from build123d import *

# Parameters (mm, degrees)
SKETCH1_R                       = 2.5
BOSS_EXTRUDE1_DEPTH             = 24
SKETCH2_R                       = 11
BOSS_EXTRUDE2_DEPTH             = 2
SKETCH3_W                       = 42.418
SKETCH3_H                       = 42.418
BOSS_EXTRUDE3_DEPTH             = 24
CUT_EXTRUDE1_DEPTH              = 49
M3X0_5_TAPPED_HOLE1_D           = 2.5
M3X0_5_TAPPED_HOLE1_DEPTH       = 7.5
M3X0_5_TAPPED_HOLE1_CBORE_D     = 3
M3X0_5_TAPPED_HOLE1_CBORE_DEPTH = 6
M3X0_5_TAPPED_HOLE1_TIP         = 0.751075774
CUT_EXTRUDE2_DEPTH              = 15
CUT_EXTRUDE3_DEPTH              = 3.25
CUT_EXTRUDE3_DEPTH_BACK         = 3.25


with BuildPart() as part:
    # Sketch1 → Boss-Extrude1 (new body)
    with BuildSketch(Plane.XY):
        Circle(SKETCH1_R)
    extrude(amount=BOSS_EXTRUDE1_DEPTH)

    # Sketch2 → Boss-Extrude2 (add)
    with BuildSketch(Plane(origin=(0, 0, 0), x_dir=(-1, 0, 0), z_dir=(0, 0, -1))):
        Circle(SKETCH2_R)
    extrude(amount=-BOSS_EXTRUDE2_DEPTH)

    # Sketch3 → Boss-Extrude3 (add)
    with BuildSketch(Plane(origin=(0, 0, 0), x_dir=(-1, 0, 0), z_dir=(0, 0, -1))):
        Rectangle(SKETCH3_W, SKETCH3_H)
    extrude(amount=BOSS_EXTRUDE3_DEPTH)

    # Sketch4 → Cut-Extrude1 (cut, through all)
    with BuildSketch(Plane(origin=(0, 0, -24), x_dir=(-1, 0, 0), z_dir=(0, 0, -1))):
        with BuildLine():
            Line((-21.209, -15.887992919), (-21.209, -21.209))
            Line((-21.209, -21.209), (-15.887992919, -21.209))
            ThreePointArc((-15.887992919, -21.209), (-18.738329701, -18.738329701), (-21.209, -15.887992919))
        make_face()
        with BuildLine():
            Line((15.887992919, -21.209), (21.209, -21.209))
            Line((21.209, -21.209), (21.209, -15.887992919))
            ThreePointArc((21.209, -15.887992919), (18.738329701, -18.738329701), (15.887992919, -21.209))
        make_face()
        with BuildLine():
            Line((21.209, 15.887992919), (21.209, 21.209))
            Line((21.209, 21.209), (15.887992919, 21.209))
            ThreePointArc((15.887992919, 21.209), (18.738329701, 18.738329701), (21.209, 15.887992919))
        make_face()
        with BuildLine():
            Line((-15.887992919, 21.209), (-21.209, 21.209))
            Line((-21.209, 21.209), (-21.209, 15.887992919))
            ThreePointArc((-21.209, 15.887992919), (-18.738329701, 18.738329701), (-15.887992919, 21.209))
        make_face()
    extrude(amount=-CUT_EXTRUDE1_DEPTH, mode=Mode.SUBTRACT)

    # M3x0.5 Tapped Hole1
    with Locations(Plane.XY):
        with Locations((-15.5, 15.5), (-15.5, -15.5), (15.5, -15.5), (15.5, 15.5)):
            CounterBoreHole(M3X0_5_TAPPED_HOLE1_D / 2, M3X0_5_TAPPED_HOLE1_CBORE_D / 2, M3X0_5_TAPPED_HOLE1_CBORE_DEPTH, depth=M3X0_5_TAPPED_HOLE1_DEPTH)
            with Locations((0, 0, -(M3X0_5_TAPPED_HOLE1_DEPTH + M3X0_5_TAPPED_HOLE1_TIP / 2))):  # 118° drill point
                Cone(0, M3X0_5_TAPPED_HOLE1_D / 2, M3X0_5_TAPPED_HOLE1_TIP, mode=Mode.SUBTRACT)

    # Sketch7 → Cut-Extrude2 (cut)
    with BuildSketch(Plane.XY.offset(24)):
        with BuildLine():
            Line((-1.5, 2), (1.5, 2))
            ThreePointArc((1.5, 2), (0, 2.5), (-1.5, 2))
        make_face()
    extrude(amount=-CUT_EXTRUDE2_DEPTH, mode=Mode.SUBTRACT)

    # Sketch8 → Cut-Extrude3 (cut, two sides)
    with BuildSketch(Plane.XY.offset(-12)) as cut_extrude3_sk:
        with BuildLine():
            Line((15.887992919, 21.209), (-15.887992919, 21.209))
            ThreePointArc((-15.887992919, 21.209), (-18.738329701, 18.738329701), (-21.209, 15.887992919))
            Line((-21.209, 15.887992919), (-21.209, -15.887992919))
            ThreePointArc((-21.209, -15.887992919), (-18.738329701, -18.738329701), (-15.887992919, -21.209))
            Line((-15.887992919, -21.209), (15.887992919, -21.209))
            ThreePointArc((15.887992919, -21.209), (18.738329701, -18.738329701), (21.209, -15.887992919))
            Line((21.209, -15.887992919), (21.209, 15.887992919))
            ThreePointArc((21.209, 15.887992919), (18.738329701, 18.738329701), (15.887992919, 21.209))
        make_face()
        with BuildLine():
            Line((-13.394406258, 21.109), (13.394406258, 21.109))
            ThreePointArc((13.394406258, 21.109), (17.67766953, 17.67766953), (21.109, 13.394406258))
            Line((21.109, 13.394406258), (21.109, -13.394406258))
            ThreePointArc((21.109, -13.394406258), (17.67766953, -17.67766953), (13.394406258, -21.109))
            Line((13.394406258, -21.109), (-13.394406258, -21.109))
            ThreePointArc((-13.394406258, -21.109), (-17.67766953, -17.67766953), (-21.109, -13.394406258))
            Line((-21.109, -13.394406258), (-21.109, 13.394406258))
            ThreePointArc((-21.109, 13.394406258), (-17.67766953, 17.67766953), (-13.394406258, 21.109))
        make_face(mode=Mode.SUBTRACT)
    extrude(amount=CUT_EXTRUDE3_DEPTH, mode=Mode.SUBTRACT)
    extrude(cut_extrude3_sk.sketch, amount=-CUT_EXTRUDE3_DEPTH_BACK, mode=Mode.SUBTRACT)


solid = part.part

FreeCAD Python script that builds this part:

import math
import FreeCAD as App
import Part
import Sketcher

doc = App.newDocument("Part")
params = doc.addObject("Spreadsheet::Sheet", "Params")
for row, (alias, value) in enumerate([
    ("sketch1_diameter", "5 mm"),
    ("pad1_length", "24 mm"),
    ("sketch2_diameter", "22 mm"),
    ("pad2_length", "2 mm"),
    ("pad3_length", "24 mm"),
    ("sketch4_radius", "26.5 mm"),
    ("sketch5_diameter", "2.5 mm"),
    ("hole_diameter", "2.5 mm"),
    ("hole_depth", "7.5 mm"),
    ("hole_cbore_diameter", "3 mm"),
    ("hole_cbore_depth", "6 mm"),
    ("sketch6_radius", "2.5 mm"),
    ("sketch6_width", "3 mm"),
    ("pocket2_length", "15 mm"),
    ("sketch7_radius", "25 mm"),
    ("sketch7_radius2", "26.5 mm"),
    ("pocket3_length", "3.25 mm"),
    ("pocket3_length2", "3.25 mm"),
], start=1):
    params.set(f"A{row}", alias)
    params.set(f"B{row}", "=" + value)
    params.setAlias(f"B{row}", alias)

body = doc.addObject("PartDesign::Body", "Body")

sketch1 = doc.addObject("Sketcher::SketchObject", "Sketch")
body.addObject(sketch1)
sketch1.AttachmentSupport = (doc.XY_Plane, [""])
sketch1.MapMode = "FlatFace"
sketch1.addGeometry(Part.Circle(App.Vector(0, 0, 0), App.Vector(0, 0, 1), 2.5), False)
sketch1.addConstraint(Sketcher.Constraint("Coincident", 0, 3, -1, 1))
sketch1.addConstraint(Sketcher.Constraint("Diameter", 0, 5.0))
sketch1.setExpression("Constraints[1]", "Params.sketch1_diameter")
pad1 = doc.addObject("PartDesign::Pad", "Pad")
body.addObject(pad1)
pad1.Profile = sketch1
pad1.setExpression("Length", "Params.pad1_length")

sketch2 = doc.addObject("Sketcher::SketchObject", "Sketch001")
body.addObject(sketch2)
sketch2.AttachmentSupport = (doc.XY_Plane, [""])
sketch2.MapMode = "FlatFace"
sketch2.addGeometry(Part.Circle(App.Vector(0, 0, 0), App.Vector(0, 0, 1), 11), False)
sketch2.addConstraint(Sketcher.Constraint("Coincident", 0, 3, -1, 1))
sketch2.addConstraint(Sketcher.Constraint("Diameter", 0, 22.0))
sketch2.setExpression("Constraints[1]", "Params.sketch2_diameter")
pad2 = doc.addObject("PartDesign::Pad", "Pad001")
body.addObject(pad2)
pad2.Profile = sketch2
pad2.setExpression("Length", "Params.pad2_length")

sketch3 = doc.addObject("Sketcher::SketchObject", "Sketch002")
body.addObject(sketch3)
sketch3.AttachmentSupport = (doc.XY_Plane, [""])
sketch3.MapMode = "FlatFace"
sketch3.addGeometry(Part.LineSegment(App.Vector(21, 21, 0), App.Vector(21, -21, 0)), False)
sketch3.addGeometry(Part.LineSegment(App.Vector(21, -21, 0), App.Vector(-21, -21, 0)), False)
sketch3.addGeometry(Part.LineSegment(App.Vector(-21, -21, 0), App.Vector(-21, 21, 0)), False)
sketch3.addGeometry(Part.LineSegment(App.Vector(-21, 21, 0), App.Vector(21, 21, 0)), False)
sketch3.addConstraint(Sketcher.Constraint("Coincident", 0, 2, 1, 1))
sketch3.addConstraint(Sketcher.Constraint("Coincident", 1, 2, 2, 1))
sketch3.addConstraint(Sketcher.Constraint("Coincident", 2, 2, 3, 1))
sketch3.addConstraint(Sketcher.Constraint("Coincident", 3, 2, 0, 1))
sketch3.addConstraint(Sketcher.Constraint("Vertical", 0))
sketch3.addConstraint(Sketcher.Constraint("Horizontal", 1))
sketch3.addConstraint(Sketcher.Constraint("Vertical", 2))
sketch3.addConstraint(Sketcher.Constraint("Horizontal", 3))
sketch3.addConstraint(Sketcher.Constraint("Symmetric", 0, 2, 2, 2, -1, 1))
sketch3.addConstraint(Sketcher.Constraint("Equal", 3, 0))
sketch3.addConstraint(Sketcher.Constraint("DistanceX", 1, 2, 1, 1, 42.418))
pad3 = doc.addObject("PartDesign::Pad", "Pad002")
body.addObject(pad3)
pad3.Profile = sketch3
pad3.setExpression("Length", "Params.pad3_length")
pad3.Reversed = True

sketch4 = doc.addObject("Sketcher::SketchObject", "Sketch003")
body.addObject(sketch4)
sketch4.AttachmentSupport = (doc.XY_Plane, [""])
sketch4.MapMode = "FlatFace"
sketch4.AttachmentOffset = App.Placement(App.Vector(0, 0, -24), App.Rotation())
sketch4.addGeometry(Part.LineSegment(App.Vector(21, -16, 0), App.Vector(21, -21, 0)), False)
sketch4.addGeometry(Part.LineSegment(App.Vector(21, -21, 0), App.Vector(16, -21, 0)), False)
sketch4.addGeometry(Part.ArcOfCircle(Part.Circle(App.Vector(0, 0, 0), App.Vector(0, 0, 1), 27), math.radians(-53.16), math.radians(-36.84)), False)
sketch4.addGeometry(Part.LineSegment(App.Vector(-16, -21, 0), App.Vector(-21, -21, 0)), False)
sketch4.addGeometry(Part.LineSegment(App.Vector(-21, -21, 0), App.Vector(-21, -16, 0)), False)
sketch4.addGeometry(Part.ArcOfCircle(Part.Circle(App.Vector(0, 0, 0), App.Vector(0, 0, 1), 27), math.radians(-143.16), math.radians(-126.84)), False)
sketch4.addGeometry(Part.LineSegment(App.Vector(-21, 16, 0), App.Vector(-21, 21, 0)), False)
sketch4.addGeometry(Part.LineSegment(App.Vector(-21, 21, 0), App.Vector(-16, 21, 0)), False)
sketch4.addGeometry(Part.ArcOfCircle(Part.Circle(App.Vector(0, 0, 0), App.Vector(0, 0, 1), 27), math.radians(126.84), math.radians(143.16)), False)
sketch4.addGeometry(Part.LineSegment(App.Vector(16, 21, 0), App.Vector(21, 21, 0)), False)
sketch4.addGeometry(Part.LineSegment(App.Vector(21, 21, 0), App.Vector(21, 16, 0)), False)
sketch4.addGeometry(Part.ArcOfCircle(Part.Circle(App.Vector(0, 0, 0), App.Vector(0, 0, 1), 27), math.radians(36.84), math.radians(53.16)), False)
sketch4.addConstraint(Sketcher.Constraint("Coincident", 0, 2, 1, 1))
sketch4.addConstraint(Sketcher.Constraint("Coincident", 1, 2, 2, 1))
sketch4.addConstraint(Sketcher.Constraint("Coincident", 2, 2, 0, 1))
sketch4.addConstraint(Sketcher.Constraint("Coincident", 3, 2, 4, 1))
sketch4.addConstraint(Sketcher.Constraint("Coincident", 4, 2, 5, 1))
sketch4.addConstraint(Sketcher.Constraint("Coincident", 5, 2, 3, 1))
sketch4.addConstraint(Sketcher.Constraint("Coincident", 6, 2, 7, 1))
sketch4.addConstraint(Sketcher.Constraint("Coincident", 7, 2, 8, 1))
sketch4.addConstraint(Sketcher.Constraint("Coincident", 8, 2, 6, 1))
sketch4.addConstraint(Sketcher.Constraint("Coincident", 9, 2, 10, 1))
sketch4.addConstraint(Sketcher.Constraint("Coincident", 10, 2, 11, 1))
sketch4.addConstraint(Sketcher.Constraint("Coincident", 11, 2, 9, 1))
sketch4.addConstraint(Sketcher.Constraint("Vertical", 0))
sketch4.addConstraint(Sketcher.Constraint("Horizontal", 1))
sketch4.addConstraint(Sketcher.Constraint("Horizontal", 3))
sketch4.addConstraint(Sketcher.Constraint("Vertical", 4))
sketch4.addConstraint(Sketcher.Constraint("Vertical", 6))
sketch4.addConstraint(Sketcher.Constraint("Horizontal", 7))
sketch4.addConstraint(Sketcher.Constraint("Horizontal", 9))
sketch4.addConstraint(Sketcher.Constraint("Vertical", 10))
sketch4.addConstraint(Sketcher.Constraint("Coincident", 2, 3, -1, 1))
sketch4.addConstraint(Sketcher.Constraint("Coincident", 5, 3, -1, 1))
sketch4.addConstraint(Sketcher.Constraint("Coincident", 8, 3, -1, 1))
sketch4.addConstraint(Sketcher.Constraint("Coincident", 11, 3, -1, 1))
sketch4.addConstraint(Sketcher.Constraint("Equal", 2, 5))
sketch4.addConstraint(Sketcher.Constraint("Equal", 5, 8))
sketch4.addConstraint(Sketcher.Constraint("Equal", 8, 11))
sketch4.addConstraint(Sketcher.Constraint("Symmetric", 0, 2, 6, 2, -1, 1))
sketch4.addConstraint(Sketcher.Constraint("Symmetric", 3, 2, 9, 2, -1, 1))
sketch4.addConstraint(Sketcher.Constraint("Symmetric", 0, 2, 3, 2, -2))
sketch4.addConstraint(Sketcher.Constraint("Equal", 9, 0))
sketch4.addConstraint(Sketcher.Constraint("Radius", 2, 26.5))
sketch4.addConstraint(Sketcher.Constraint("DistanceX", -1, 1, 0, 2, 21.209))
sketch4.setExpression("Constraints[31]", "Params.sketch4_radius")
pocket1 = doc.addObject("PartDesign::Pocket", "Pocket")
body.addObject(pocket1)
pocket1.Profile = sketch4
pocket1.Type = "ThroughAll"
pocket1.Reversed = True

sketch5 = doc.addObject("Sketcher::SketchObject", "Sketch004")
body.addObject(sketch5)
sketch5.AttachmentSupport = (doc.XY_Plane, [""])
sketch5.MapMode = "FlatFace"
sketch5.addGeometry(Part.Circle(App.Vector(-15.5, 15.5, 0), App.Vector(0, 0, 1), 1.2), False)
sketch5.addGeometry(Part.Circle(App.Vector(-15.5, -15.5, 0), App.Vector(0, 0, 1), 1.2), False)
sketch5.addGeometry(Part.Circle(App.Vector(15.5, -15.5, 0), App.Vector(0, 0, 1), 1.2), False)
sketch5.addGeometry(Part.Circle(App.Vector(15.5, 15.5, 0), App.Vector(0, 0, 1), 1.2), False)
sketch5.addConstraint(Sketcher.Constraint("Equal", 0, 1))
sketch5.addConstraint(Sketcher.Constraint("Equal", 1, 2))
sketch5.addConstraint(Sketcher.Constraint("Equal", 2, 3))
sketch5.addConstraint(Sketcher.Constraint("Symmetric", 0, 3, 2, 3, -1, 1))
sketch5.addConstraint(Sketcher.Constraint("Symmetric", 1, 3, 3, 3, -1, 1))
sketch5.addConstraint(Sketcher.Constraint("Symmetric", 1, 3, 2, 3, -2))
sketch5.addConstraint(Sketcher.Constraint("Diameter", 0, 2.5))
sketch5.addConstraint(Sketcher.Constraint("DistanceY", 1, 3, 0, 3, 31.0))
sketch5.addConstraint(Sketcher.Constraint("DistanceX", 1, 3, 2, 3, 31.0))
sketch5.setExpression("Constraints[6]", "Params.sketch5_diameter")
doc.recompute()
hole = doc.addObject("PartDesign::Hole", "Hole")
body.addObject(hole)
hole.Profile = sketch5
hole.ThreadType = "None"
hole.setExpression("Diameter", "Params.hole_diameter")
hole.DepthType = "Dimension"
hole.setExpression("Depth", "Params.hole_depth")
hole.DrillPoint = "Angled"
hole.DrillPointAngle = 118
hole.HoleCutType = "Counterbore"
hole.setExpression("HoleCutDiameter", "Params.hole_cbore_diameter")
hole.setExpression("HoleCutDepth", "Params.hole_cbore_depth")

sketch6 = doc.addObject("Sketcher::SketchObject", "Sketch005")
body.addObject(sketch6)
sketch6.AttachmentSupport = (doc.XY_Plane, [""])
sketch6.MapMode = "FlatFace"
sketch6.AttachmentOffset = App.Placement(App.Vector(0, 0, 24), App.Rotation())
sketch6.addGeometry(Part.LineSegment(App.Vector(-1.5, 2, 0), App.Vector(1.5, 2, 0)), False)
sketch6.addGeometry(Part.ArcOfCircle(Part.Circle(App.Vector(0, 0, 0), App.Vector(0, 0, 1), 2.5), math.radians(53), math.radians(127)), False)
sketch6.addConstraint(Sketcher.Constraint("Coincident", 0, 1, 1, 2))
sketch6.addConstraint(Sketcher.Constraint("Coincident", 1, 1, 0, 2))
sketch6.addConstraint(Sketcher.Constraint("Horizontal", 0))
sketch6.addConstraint(Sketcher.Constraint("Coincident", 1, 3, -1, 1))
sketch6.addConstraint(Sketcher.Constraint("Radius", 1, 2.5))
sketch6.addConstraint(Sketcher.Constraint("DistanceX", 0, 1, 0, 2, 3.0))
sketch6.setExpression("Constraints[4]", "Params.sketch6_radius")
sketch6.setExpression("Constraints[5]", "Params.sketch6_width")
pocket2 = doc.addObject("PartDesign::Pocket", "Pocket001")
body.addObject(pocket2)
pocket2.Profile = sketch6
pocket2.setExpression("Length", "Params.pocket2_length")

sketch7 = doc.addObject("Sketcher::SketchObject", "Sketch006")
body.addObject(sketch7)
sketch7.AttachmentSupport = (doc.XY_Plane, [""])
sketch7.MapMode = "FlatFace"
sketch7.AttachmentOffset = App.Placement(App.Vector(0, 0, -12), App.Rotation())
sketch7.addGeometry(Part.LineSegment(App.Vector(16, 21, 0), App.Vector(-16, 21, 0)), False)
sketch7.addGeometry(Part.ArcOfCircle(Part.Circle(App.Vector(0, 0, 0), App.Vector(0, 0, 1), 27), math.radians(126.84), math.radians(143.16)), False)
sketch7.addGeometry(Part.LineSegment(App.Vector(-21, 16, 0), App.Vector(-21, -16, 0)), False)
sketch7.addGeometry(Part.ArcOfCircle(Part.Circle(App.Vector(0, 0, 0), App.Vector(0, 0, 1), 27), math.radians(-143.16), math.radians(-126.84)), False)
sketch7.addGeometry(Part.LineSegment(App.Vector(-16, -21, 0), App.Vector(16, -21, 0)), False)
sketch7.addGeometry(Part.ArcOfCircle(Part.Circle(App.Vector(0, 0, 0), App.Vector(0, 0, 1), 27), math.radians(-53.16), math.radians(-36.84)), False)
sketch7.addGeometry(Part.LineSegment(App.Vector(21, -16, 0), App.Vector(21, 16, 0)), False)
sketch7.addGeometry(Part.ArcOfCircle(Part.Circle(App.Vector(0, 0, 0), App.Vector(0, 0, 1), 27), math.radians(36.84), math.radians(53.16)), False)
sketch7.addGeometry(Part.ArcOfCircle(Part.Circle(App.Vector(0, 0, 0), App.Vector(0, 0, 1), 25), math.radians(122), math.radians(148)), False)
sketch7.addGeometry(Part.LineSegment(App.Vector(-13, 21, 0), App.Vector(13, 21, 0)), False)
sketch7.addGeometry(Part.ArcOfCircle(Part.Circle(App.Vector(0, 0, 0), App.Vector(0, 0, 1), 25), math.radians(32), math.radians(58)), False)
sketch7.addGeometry(Part.LineSegment(App.Vector(21, 13, 0), App.Vector(21, -13, 0)), False)
sketch7.addGeometry(Part.ArcOfCircle(Part.Circle(App.Vector(0, 0, 0), App.Vector(0, 0, 1), 25), math.radians(-58), math.radians(-32)), False)
sketch7.addGeometry(Part.LineSegment(App.Vector(13, -21, 0), App.Vector(-13, -21, 0)), False)
sketch7.addGeometry(Part.ArcOfCircle(Part.Circle(App.Vector(0, 0, 0), App.Vector(0, 0, 1), 25), math.radians(-148), math.radians(-122)), False)
sketch7.addGeometry(Part.LineSegment(App.Vector(-21, -13, 0), App.Vector(-21, 13, 0)), False)
sketch7.addConstraint(Sketcher.Constraint("Coincident", 0, 2, 1, 1))
sketch7.addConstraint(Sketcher.Constraint("Coincident", 1, 2, 2, 1))
sketch7.addConstraint(Sketcher.Constraint("Coincident", 2, 2, 3, 1))
sketch7.addConstraint(Sketcher.Constraint("Coincident", 3, 2, 4, 1))
sketch7.addConstraint(Sketcher.Constraint("Coincident", 4, 2, 5, 1))
sketch7.addConstraint(Sketcher.Constraint("Coincident", 5, 2, 6, 1))
sketch7.addConstraint(Sketcher.Constraint("Coincident", 6, 2, 7, 1))
sketch7.addConstraint(Sketcher.Constraint("Coincident", 7, 2, 0, 1))
sketch7.addConstraint(Sketcher.Constraint("Coincident", 8, 1, 9, 1))
sketch7.addConstraint(Sketcher.Constraint("Coincident", 9, 2, 10, 2))
sketch7.addConstraint(Sketcher.Constraint("Coincident", 10, 1, 11, 1))
sketch7.addConstraint(Sketcher.Constraint("Coincident", 11, 2, 12, 2))
sketch7.addConstraint(Sketcher.Constraint("Coincident", 12, 1, 13, 1))
sketch7.addConstraint(Sketcher.Constraint("Coincident", 13, 2, 14, 2))
sketch7.addConstraint(Sketcher.Constraint("Coincident", 14, 1, 15, 1))
sketch7.addConstraint(Sketcher.Constraint("Coincident", 15, 2, 8, 2))
sketch7.addConstraint(Sketcher.Constraint("Horizontal", 0))
sketch7.addConstraint(Sketcher.Constraint("Vertical", 2))
sketch7.addConstraint(Sketcher.Constraint("Horizontal", 4))
sketch7.addConstraint(Sketcher.Constraint("Vertical", 6))
sketch7.addConstraint(Sketcher.Constraint("Horizontal", 9))
sketch7.addConstraint(Sketcher.Constraint("Vertical", 11))
sketch7.addConstraint(Sketcher.Constraint("Horizontal", 13))
sketch7.addConstraint(Sketcher.Constraint("Vertical", 15))
sketch7.addConstraint(Sketcher.Constraint("Coincident", 1, 3, -1, 1))
sketch7.addConstraint(Sketcher.Constraint("Coincident", 3, 3, -1, 1))
sketch7.addConstraint(Sketcher.Constraint("Coincident", 5, 3, -1, 1))
sketch7.addConstraint(Sketcher.Constraint("Coincident", 7, 3, -1, 1))
sketch7.addConstraint(Sketcher.Constraint("Coincident", 8, 3, -1, 1))
sketch7.addConstraint(Sketcher.Constraint("Coincident", 10, 3, -1, 1))
sketch7.addConstraint(Sketcher.Constraint("Coincident", 12, 3, -1, 1))
sketch7.addConstraint(Sketcher.Constraint("Coincident", 14, 3, -1, 1))
sketch7.addConstraint(Sketcher.Constraint("Equal", 1, 3))
sketch7.addConstraint(Sketcher.Constraint("Equal", 3, 5))
sketch7.addConstraint(Sketcher.Constraint("Equal", 5, 7))
sketch7.addConstraint(Sketcher.Constraint("Equal", 8, 10))
sketch7.addConstraint(Sketcher.Constraint("Equal", 10, 12))
sketch7.addConstraint(Sketcher.Constraint("Equal", 12, 14))
sketch7.addConstraint(Sketcher.Constraint("Horizontal", 2, 2, 5, 2))
sketch7.addConstraint(Sketcher.Constraint("Horizontal", 11, 2, 14, 1))
sketch7.addConstraint(Sketcher.Constraint("Vertical", 0, 2, 3, 2))
sketch7.addConstraint(Sketcher.Constraint("Vertical", 9, 2, 12, 1))
sketch7.addConstraint(Sketcher.Constraint("Equal", 4, 2))
sketch7.addConstraint(Sketcher.Constraint("Equal", 13, 11))
sketch7.addConstraint(Sketcher.Constraint("Radius", 8, 25.0))
sketch7.addConstraint(Sketcher.Constraint("Radius", 1, 26.5))
sketch7.addConstraint(Sketcher.Constraint("DistanceY", 8, 1, 0, 2, 0.1))
sketch7.addConstraint(Sketcher.Constraint("DistanceY", -1, 1, 0, 2, 21.209))
sketch7.setExpression("Constraints[44]", "Params.sketch7_radius")
sketch7.setExpression("Constraints[45]", "Params.sketch7_radius2")
pocket3 = doc.addObject("PartDesign::Pocket", "Pocket002")
body.addObject(pocket3)
pocket3.Profile = sketch7
pocket3.Type = "TwoLengths"
pocket3.setExpression("Length", "Params.pocket3_length")
pocket3.setExpression("Length2", "Params.pocket3_length2")
pocket3.Reversed = True

doc.recompute()
